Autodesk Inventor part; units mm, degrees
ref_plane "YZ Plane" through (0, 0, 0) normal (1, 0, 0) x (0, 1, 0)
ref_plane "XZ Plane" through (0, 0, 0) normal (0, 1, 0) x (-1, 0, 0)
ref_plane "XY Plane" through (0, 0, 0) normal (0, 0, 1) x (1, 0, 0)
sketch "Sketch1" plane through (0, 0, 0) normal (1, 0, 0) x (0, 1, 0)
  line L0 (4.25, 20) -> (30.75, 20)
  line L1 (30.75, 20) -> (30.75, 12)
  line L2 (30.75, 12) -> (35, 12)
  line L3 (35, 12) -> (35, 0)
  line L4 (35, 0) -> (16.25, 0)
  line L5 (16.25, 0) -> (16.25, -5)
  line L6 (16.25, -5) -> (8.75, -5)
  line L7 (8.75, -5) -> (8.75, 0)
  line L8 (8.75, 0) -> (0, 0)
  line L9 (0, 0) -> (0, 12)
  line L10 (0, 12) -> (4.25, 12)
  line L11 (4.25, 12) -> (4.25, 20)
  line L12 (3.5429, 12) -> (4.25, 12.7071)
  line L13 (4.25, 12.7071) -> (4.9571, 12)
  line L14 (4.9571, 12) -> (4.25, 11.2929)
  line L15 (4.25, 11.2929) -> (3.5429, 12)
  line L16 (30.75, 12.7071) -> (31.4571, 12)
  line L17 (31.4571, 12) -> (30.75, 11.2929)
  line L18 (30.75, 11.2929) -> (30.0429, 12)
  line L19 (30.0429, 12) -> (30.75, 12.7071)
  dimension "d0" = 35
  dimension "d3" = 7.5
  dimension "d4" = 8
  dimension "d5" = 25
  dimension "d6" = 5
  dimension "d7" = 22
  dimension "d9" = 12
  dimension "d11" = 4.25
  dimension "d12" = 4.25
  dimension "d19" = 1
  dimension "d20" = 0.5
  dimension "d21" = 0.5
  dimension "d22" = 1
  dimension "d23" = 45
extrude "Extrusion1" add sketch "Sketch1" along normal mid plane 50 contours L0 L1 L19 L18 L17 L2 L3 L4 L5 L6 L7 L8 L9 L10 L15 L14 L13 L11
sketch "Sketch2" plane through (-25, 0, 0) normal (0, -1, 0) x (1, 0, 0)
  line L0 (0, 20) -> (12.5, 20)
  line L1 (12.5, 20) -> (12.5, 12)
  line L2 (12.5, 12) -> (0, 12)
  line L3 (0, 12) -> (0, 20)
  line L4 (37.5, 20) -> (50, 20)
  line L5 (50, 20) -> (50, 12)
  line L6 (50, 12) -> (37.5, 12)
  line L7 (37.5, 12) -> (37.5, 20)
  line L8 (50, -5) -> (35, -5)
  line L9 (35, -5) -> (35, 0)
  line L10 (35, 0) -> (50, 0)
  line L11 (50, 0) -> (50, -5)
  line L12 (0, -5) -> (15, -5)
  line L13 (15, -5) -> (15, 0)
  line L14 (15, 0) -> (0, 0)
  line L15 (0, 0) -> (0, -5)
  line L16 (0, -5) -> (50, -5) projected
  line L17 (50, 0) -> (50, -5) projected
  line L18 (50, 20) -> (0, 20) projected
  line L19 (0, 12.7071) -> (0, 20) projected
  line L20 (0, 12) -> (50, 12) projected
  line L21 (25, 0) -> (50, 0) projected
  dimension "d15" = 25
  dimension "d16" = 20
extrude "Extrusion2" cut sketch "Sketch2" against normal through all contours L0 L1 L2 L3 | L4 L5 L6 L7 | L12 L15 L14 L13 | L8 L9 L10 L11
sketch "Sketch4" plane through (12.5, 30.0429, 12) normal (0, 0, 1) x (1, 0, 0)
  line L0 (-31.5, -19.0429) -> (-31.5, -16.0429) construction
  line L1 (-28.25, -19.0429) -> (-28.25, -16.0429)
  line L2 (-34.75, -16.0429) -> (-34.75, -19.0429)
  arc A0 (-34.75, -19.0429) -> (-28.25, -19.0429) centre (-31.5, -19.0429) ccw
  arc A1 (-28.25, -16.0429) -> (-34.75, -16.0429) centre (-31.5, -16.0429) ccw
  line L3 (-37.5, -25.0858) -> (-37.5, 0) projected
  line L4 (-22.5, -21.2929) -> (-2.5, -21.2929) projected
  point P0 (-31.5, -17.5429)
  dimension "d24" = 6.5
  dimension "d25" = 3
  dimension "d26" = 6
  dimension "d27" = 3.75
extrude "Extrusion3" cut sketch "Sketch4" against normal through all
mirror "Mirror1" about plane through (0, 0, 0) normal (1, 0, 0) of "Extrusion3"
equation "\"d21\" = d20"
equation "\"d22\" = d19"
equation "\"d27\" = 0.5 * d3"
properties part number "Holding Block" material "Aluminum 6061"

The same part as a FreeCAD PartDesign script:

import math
import FreeCAD as App
import Part
import Sketcher
Q = App.Units.Quantity


def add_polygon(sketch, points):
    """Adds a closed chain of lines whose ends are joined by coincident constraints."""
    first, n = sketch.GeometryCount, len(points)
    for a, b in zip(points, points[1:] + points[:1]):
        sketch.addGeometry(Part.LineSegment(App.Vector(*a, 0), App.Vector(*b, 0)), False)
    for i in range(n):
        sketch.addConstraint(Sketcher.Constraint("Coincident", first + i, 2, first + (i + 1) % n, 1))

doc = App.newDocument("Part")
body = doc.addObject("PartDesign::Body", "Body")

# Sketch on YZ plane
sketch1 = body.newObject("Sketcher::SketchObject", "Sketch")
sketch1.AttachmentSupport = (doc.getObject("YZ_Plane"), [""])
sketch1.MapMode = "FlatFace"
add_polygon(sketch1, [(30.8, 20), (4.2, 20), (4.2, 12.7), (5, 12), (4.2, 11.3), (3.5, 12), (0, 12), (0, 0), (8.8, 0), (8.8, -5), (16.2, -5), (16.2, 0), (35, 0), (35, 12), (31.5, 12), (30.8, 11.3), (30, 12), (30.8, 12.7)])  # lines 0-17
sketch1.addConstraint([
    Sketcher.Constraint("Horizontal", 0),
    Sketcher.Constraint("Vertical", 1),
    Sketcher.Constraint("Horizontal", 5),
    Sketcher.Constraint("Vertical", 6),
    Sketcher.Constraint("Horizontal", 7),
    Sketcher.Constraint("Vertical", 8),
    Sketcher.Constraint("Horizontal", 9),
    Sketcher.Constraint("Vertical", 10),
    Sketcher.Constraint("Horizontal", 11),
    Sketcher.Constraint("Vertical", 12),
    Sketcher.Constraint("Horizontal", 13),
    Sketcher.Constraint("Vertical", 17),
    Sketcher.Constraint("Coincident", 6, 2, -1, 1),
    Sketcher.Constraint("PointOnObject", 10, 2, -1),
    Sketcher.Constraint("Perpendicular", 2, 3),
    Sketcher.Constraint("Perpendicular", 3, 4),
    Sketcher.Constraint("Perpendicular", 4, 14),
    Sketcher.Constraint("Perpendicular", 14, 15),
    Sketcher.Constraint("Perpendicular", 15, 16),
    Sketcher.Constraint("Horizontal", 2, 2, 4, 2),
    Sketcher.Constraint("Horizontal", 5, 2, 12, 2),
    Sketcher.Constraint("Horizontal", 3, 2, 14, 2),
    Sketcher.Constraint("Horizontal", 13, 2, 15, 2),
    Sketcher.Constraint("Horizontal", 1, 2, 16, 2),
    Sketcher.Constraint("Vertical", 1, 2, 3, 2),
    Sketcher.Constraint("Vertical", 14, 2, 16, 2),
    Sketcher.Constraint("Equal", 5, 13),
    Sketcher.Constraint("DistanceY", 6, 2, 6, 1, Q("12 mm")),
    Sketcher.Constraint("DistanceY", 8, 2, 8, 1, Q("5 mm")),
    Sketcher.Constraint("Distance", 2, Q("1 mm")),
    Sketcher.Constraint("DistanceX", 9, 1, 9, 2, Q("7.5 mm")),
    Sketcher.Constraint("DistanceX", -1, 1, 11, 2, Q("35 mm")),
    Sketcher.Constraint("DistanceY", 2, 2, 0, 2, Q("8 mm")),
    Sketcher.Constraint("DistanceX", 3, 2, 9, 2, Q("12 mm")),
    Sketcher.Constraint("DistanceX", -1, 1, 0, 2, Q("4.25 mm")),
])
pad1 = body.newObject("PartDesign::Pad", "Pad")
pad1.Profile = sketch1
pad1.Length = 50
pad1.Midplane = True

# Sketch on XZ plane
sketch2 = body.newObject("Sketcher::SketchObject", "Sketch001")
sketch2.AttachmentSupport = (doc.getObject("XZ_Plane"), [""])
sketch2.MapMode = "FlatFace"
add_polygon(sketch2, [(-12, 20), (-25, 20), (-25, 12), (-12, 12)])  # lines 0-3
add_polygon(sketch2, [(25, 20), (12, 20), (12, 12), (25, 12)])  # lines 4-7
add_polygon(sketch2, [(-25, -5), (-10, -5), (-10, 0), (-25, 0)])  # lines 8-11
add_polygon(sketch2, [(10, -5), (25, -5), (25, 0), (10, 0)])  # lines 12-15
sketch2.addConstraint([
    Sketcher.Constraint("Horizontal", 0),
    Sketcher.Constraint("Vertical", 1),
    Sketcher.Constraint("Horizontal", 2),
    Sketcher.Constraint("Vertical", 3),
    Sketcher.Constraint("Horizontal", 4),
    Sketcher.Constraint("Vertical", 5),
    Sketcher.Constraint("Horizontal", 6),
    Sketcher.Constraint("Vertical", 7),
    Sketcher.Constraint("Horizontal", 8),
    Sketcher.Constraint("Vertical", 9),
    Sketcher.Constraint("Horizontal", 10),
    Sketcher.Constraint("Vertical", 11),
    Sketcher.Constraint("Horizontal", 12),
    Sketcher.Constraint("Vertical", 13),
    Sketcher.Constraint("Horizontal", 14),
    Sketcher.Constraint("Vertical", 15),
    Sketcher.Constraint("Symmetric", 10, 2, 13, 2, -1, 1),
    Sketcher.Constraint("Symmetric", 3, 2, 4, 2, -2),
    Sketcher.Constraint("Symmetric", 1, 2, 6, 2, -2),
    Sketcher.Constraint("Symmetric", 9, 2, 14, 2, -2),
    Sketcher.Constraint("Horizontal", 11, 2, 12, 2),
    Sketcher.Constraint("Vertical", 1, 2, 10, 2),
    Sketcher.Constraint("DistanceX", 0, 2, -1, 1, Q("25 mm")),
    Sketcher.Constraint("DistanceY", -1, 1, 0, 2, Q("20 mm")),
    Sketcher.Constraint("DistanceX", 3, 2, 4, 2, Q("25 mm")),
    Sketcher.Constraint("DistanceY", 8, 2, 3, 2, Q("25 mm")),
    Sketcher.Constraint("DistanceX", 9, 2, 14, 2, Q("20 mm")),
    Sketcher.Constraint("DistanceY", 1, 2, 1, 1, Q("8 mm")),
])
pocket1 = body.newObject("PartDesign::Pocket", "Pocket")
pocket1.Profile = sketch2
pocket1.Type = "ThroughAll"

# Sketch on XY plane
sketch3 = body.newObject("Sketcher::SketchObject", "Sketch002")
sketch3.AttachmentSupport = (doc.getObject("XY_Plane"), [""])
sketch3.MapMode = "FlatFace"
sketch3.AttachmentOffset = App.Placement(App.Vector(0, 0, 12), App.Rotation())
sketch3.addGeometry([
    Part.ArcOfCircle(Part.Circle(App.Vector(-19, 11, 0), App.Vector(0, 0, 1), 3.2), math.radians(180), math.radians(360)),
    Part.LineSegment(App.Vector(-15.8, 11, 0), App.Vector(-15.8, 14, 0)),
    Part.ArcOfCircle(Part.Circle(App.Vector(-19, 14, 0), App.Vector(0, 0, 1), 3.2), math.radians(0), math.radians(180)),
    Part.LineSegment(App.Vector(-22.2, 14, 0), App.Vector(-22.2, 11, 0)),
], False)
sketch3.addConstraint([
    Sketcher.Constraint("Tangent", 0, 2, 1, 1),
    Sketcher.Constraint("Tangent", 1, 2, 2, 1),
    Sketcher.Constraint("Tangent", 2, 2, 3, 1),
    Sketcher.Constraint("Tangent", 3, 2, 0, 1),
    Sketcher.Constraint("Vertical", 1),
    Sketcher.Constraint("Vertical", 3),
    Sketcher.Constraint("DistanceY", 1, 1, 1, 2, Q("3 mm")),
    Sketcher.Constraint("Radius", 0, Q("3.25 mm")),
    Sketcher.Constraint("DistanceX", 0, 3, -1, 1, Q("19 mm")),
    Sketcher.Constraint("DistanceY", -1, 1, 0, 3, Q("11 mm")),
])
pocket2 = body.newObject("PartDesign::Pocket", "Pocket001")
pocket2.Profile = sketch3
pocket2.Type = "ThroughAll"
doc.recompute()

mirrored = body.newObject("PartDesign::Mirrored", "Mirrored")
mirrored.Originals = [pocket2]
mirrored.MirrorPlane = (doc.getObject("YZ_Plane"), [""])
body.Tip = mirrored

doc.recompute()
